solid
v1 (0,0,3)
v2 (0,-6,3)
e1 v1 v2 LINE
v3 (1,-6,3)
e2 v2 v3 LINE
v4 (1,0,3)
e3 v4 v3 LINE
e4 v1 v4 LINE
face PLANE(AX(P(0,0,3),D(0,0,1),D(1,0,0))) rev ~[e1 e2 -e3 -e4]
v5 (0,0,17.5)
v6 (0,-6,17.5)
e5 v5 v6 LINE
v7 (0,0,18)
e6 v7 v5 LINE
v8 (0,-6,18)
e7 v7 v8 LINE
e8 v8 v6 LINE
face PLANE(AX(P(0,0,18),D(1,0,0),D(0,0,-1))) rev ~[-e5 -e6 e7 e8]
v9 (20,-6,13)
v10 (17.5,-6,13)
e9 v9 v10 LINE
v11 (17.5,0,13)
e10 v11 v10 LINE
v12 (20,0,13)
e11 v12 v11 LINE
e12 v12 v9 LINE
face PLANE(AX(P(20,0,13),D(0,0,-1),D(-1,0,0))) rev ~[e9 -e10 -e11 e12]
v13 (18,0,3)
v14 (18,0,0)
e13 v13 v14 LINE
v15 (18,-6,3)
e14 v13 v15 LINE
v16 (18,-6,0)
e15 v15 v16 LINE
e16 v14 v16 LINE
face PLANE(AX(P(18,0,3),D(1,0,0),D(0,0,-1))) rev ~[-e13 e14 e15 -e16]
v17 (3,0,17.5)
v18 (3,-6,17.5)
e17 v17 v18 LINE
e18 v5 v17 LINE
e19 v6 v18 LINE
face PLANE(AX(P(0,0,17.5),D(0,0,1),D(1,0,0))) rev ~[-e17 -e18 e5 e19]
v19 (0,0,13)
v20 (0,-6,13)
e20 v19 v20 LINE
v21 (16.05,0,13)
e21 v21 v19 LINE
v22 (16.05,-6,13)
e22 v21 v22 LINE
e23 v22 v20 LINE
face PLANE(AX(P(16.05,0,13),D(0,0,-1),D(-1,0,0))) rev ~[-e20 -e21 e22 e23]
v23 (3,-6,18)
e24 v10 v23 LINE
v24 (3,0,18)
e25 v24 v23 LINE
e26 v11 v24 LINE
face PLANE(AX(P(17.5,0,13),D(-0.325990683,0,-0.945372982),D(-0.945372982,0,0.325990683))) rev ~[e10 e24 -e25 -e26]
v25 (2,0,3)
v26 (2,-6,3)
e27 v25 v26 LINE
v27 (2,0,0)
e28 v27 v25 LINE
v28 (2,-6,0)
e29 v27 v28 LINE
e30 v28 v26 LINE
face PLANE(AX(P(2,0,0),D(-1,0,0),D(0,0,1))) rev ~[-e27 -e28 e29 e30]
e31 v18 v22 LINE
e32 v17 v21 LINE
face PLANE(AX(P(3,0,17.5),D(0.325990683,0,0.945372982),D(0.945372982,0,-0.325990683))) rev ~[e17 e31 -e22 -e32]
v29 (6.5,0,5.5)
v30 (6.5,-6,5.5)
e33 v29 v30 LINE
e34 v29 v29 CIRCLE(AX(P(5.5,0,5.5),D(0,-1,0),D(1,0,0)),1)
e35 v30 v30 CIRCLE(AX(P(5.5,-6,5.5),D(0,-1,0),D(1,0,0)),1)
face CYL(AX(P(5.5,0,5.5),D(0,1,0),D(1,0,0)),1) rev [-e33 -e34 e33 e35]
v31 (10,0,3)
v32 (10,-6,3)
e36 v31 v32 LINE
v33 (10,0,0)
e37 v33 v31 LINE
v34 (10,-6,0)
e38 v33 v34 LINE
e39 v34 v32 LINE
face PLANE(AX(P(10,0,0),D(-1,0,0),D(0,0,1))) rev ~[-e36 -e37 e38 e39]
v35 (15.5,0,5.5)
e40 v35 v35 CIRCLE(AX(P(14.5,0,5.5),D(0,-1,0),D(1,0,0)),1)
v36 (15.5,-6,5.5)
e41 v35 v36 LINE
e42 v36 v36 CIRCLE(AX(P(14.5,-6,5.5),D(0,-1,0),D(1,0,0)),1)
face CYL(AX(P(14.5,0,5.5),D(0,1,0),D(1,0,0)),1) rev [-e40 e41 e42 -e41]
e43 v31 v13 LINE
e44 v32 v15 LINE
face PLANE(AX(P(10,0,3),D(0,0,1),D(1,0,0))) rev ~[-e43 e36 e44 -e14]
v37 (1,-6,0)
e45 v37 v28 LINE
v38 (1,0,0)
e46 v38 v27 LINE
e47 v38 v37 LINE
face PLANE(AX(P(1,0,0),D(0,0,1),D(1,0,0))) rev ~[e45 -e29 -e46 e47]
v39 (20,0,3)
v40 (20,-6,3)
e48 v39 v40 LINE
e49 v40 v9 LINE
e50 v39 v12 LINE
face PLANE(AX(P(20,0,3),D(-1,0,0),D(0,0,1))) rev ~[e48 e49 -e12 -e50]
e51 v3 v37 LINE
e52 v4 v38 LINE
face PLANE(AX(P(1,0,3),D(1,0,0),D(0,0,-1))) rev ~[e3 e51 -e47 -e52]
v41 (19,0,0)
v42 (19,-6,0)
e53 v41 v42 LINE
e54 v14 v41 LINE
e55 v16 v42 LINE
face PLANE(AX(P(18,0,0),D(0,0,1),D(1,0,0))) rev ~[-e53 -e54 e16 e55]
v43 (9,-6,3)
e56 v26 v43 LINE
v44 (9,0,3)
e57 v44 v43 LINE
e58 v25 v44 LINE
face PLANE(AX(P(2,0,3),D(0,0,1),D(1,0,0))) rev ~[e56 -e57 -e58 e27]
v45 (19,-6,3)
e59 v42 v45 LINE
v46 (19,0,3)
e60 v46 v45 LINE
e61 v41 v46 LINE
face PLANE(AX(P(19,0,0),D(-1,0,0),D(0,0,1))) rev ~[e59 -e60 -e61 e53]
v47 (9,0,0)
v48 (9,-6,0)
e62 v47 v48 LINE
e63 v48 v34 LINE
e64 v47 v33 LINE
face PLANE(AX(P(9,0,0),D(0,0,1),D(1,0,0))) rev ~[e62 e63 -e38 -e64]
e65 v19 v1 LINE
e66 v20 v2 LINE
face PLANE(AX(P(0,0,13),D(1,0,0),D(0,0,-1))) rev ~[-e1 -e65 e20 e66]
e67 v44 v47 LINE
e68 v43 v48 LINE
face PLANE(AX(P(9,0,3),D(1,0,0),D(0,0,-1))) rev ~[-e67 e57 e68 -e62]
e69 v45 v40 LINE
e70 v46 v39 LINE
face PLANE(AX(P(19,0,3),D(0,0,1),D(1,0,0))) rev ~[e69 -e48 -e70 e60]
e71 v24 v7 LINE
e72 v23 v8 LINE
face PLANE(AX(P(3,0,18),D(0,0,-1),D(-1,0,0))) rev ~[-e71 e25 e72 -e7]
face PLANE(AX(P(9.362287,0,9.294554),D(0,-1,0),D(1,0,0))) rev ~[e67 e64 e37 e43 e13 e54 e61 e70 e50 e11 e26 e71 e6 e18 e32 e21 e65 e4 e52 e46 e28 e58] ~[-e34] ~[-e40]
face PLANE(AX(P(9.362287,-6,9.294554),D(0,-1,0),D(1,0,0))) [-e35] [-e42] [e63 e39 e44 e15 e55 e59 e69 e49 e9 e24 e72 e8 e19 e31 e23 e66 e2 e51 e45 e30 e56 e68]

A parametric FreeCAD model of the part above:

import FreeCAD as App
import Part
import Sketcher
Q = App.Units.Quantity


def add_polygon(sketch, points):
    """Adds a closed chain of lines whose ends are joined by coincident constraints."""
    first, n = sketch.GeometryCount, len(points)
    for a, b in zip(points, points[1:] + points[:1]):
        sketch.addGeometry(Part.LineSegment(App.Vector(*a, 0), App.Vector(*b, 0)), False)
    for i in range(n):
        sketch.addConstraint(Sketcher.Constraint("Coincident", first + i, 2, first + (i + 1) % n, 1))

doc = App.newDocument("Part")
body = doc.addObject("PartDesign::Body", "Body")

# Sketch on XZ plane
sketch1 = body.newObject("Sketcher::SketchObject", "Sketch")
sketch1.AttachmentSupport = (doc.getObject("XZ_Plane"), [""])
sketch1.MapMode = "FlatFace"
add_polygon(sketch1, [(0, 13), (0, 3), (1, 3), (1, 0), (2, 0), (2, 3), (9, 3), (9, 0), (10, 0), (10, 3), (18, 3), (18, 0), (19, 0), (19, 3), (20, 3), (20, 13), (17.5, 13), (3, 18), (0, 18), (0, 17.5), (3, 17.5), (16.05, 13)])  # lines 0-21
sketch1.addGeometry(Part.Circle(App.Vector(5.5, 5.5, 0), App.Vector(0, 0, 1), 1), False)  # 22
sketch1.addGeometry(Part.Circle(App.Vector(14.5, 5.5, 0), App.Vector(0, 0, 1), 1), False)  # 23
sketch1.addConstraint(Sketcher.Constraint("Vertical", 0))
sketch1.addConstraint(Sketcher.Constraint("Horizontal", 1))
sketch1.addConstraint(Sketcher.Constraint("Vertical", 2))
sketch1.addConstraint(Sketcher.Constraint("Horizontal", 3))
sketch1.addConstraint(Sketcher.Constraint("Vertical", 4))
sketch1.addConstraint(Sketcher.Constraint("Horizontal", 5))
sketch1.addConstraint(Sketcher.Constraint("Vertical", 6))
sketch1.addConstraint(Sketcher.Constraint("Horizontal", 7))
sketch1.addConstraint(Sketcher.Constraint("Vertical", 8))
sketch1.addConstraint(Sketcher.Constraint("Horizontal", 9))
sketch1.addConstraint(Sketcher.Constraint("Vertical", 10))
sketch1.addConstraint(Sketcher.Constraint("Horizontal", 11))
sketch1.addConstraint(Sketcher.Constraint("Vertical", 12))
sketch1.addConstraint(Sketcher.Constraint("Horizontal", 13))
sketch1.addConstraint(Sketcher.Constraint("Vertical", 14))
sketch1.addConstraint(Sketcher.Constraint("Horizontal", 15))
sketch1.addConstraint(Sketcher.Constraint("Horizontal", 17))
sketch1.addConstraint(Sketcher.Constraint("Vertical", 18))
sketch1.addConstraint(Sketcher.Constraint("Horizontal", 19))
sketch1.addConstraint(Sketcher.Constraint("Horizontal", 21))
sketch1.addConstraint(Sketcher.Constraint("Equal", 22, 23))
sketch1.addConstraint(Sketcher.Constraint("PointOnObject", 0, 2, -2))
sketch1.addConstraint(Sketcher.Constraint("PointOnObject", 2, 2, -1))
sketch1.addConstraint(Sketcher.Constraint("PointOnObject", 6, 2, -1))
sketch1.addConstraint(Sketcher.Constraint("PointOnObject", 10, 2, -1))
sketch1.addConstraint(Sketcher.Constraint("PointOnObject", 17, 2, -2))
sketch1.addConstraint(Sketcher.Constraint("Parallel", 16, 20))
sketch1.addConstraint(Sketcher.Constraint("Horizontal", 22, 3, 23, 3))
sketch1.addConstraint(Sketcher.Constraint("Horizontal", 1, 2, 4, 2))
sketch1.addConstraint(Sketcher.Constraint("Horizontal", 5, 2, 8, 2))
sketch1.addConstraint(Sketcher.Constraint("Horizontal", 9, 2, 12, 2))
sketch1.addConstraint(Sketcher.Constraint("Horizontal", 15, 2, 20, 2))
sketch1.addConstraint(Sketcher.Constraint("Vertical", 16, 2, 19, 2))
sketch1.addConstraint(Sketcher.Constraint("Equal", 1, 3))
sketch1.addConstraint(Sketcher.Constraint("Equal", 3, 7))
sketch1.addConstraint(Sketcher.Constraint("Equal", 7, 11))
sketch1.addConstraint(Sketcher.Constraint("Equal", 11, 13))
sketch1.addConstraint(Sketcher.Constraint("Equal", 19, 2))
sketch1.addConstraint(Sketcher.Constraint("Diameter", 22, Q("2 mm")))
sketch1.addConstraint(Sketcher.Constraint("DistanceX", 1, 1, 1, 2, Q("1 mm")))
sketch1.addConstraint(Sketcher.Constraint("DistanceX", 5, 1, 5, 2, Q("7 mm")))
sketch1.addConstraint(Sketcher.Constraint("DistanceX", 9, 1, 9, 2, Q("8 mm")))
sketch1.addConstraint(Sketcher.Constraint("DistanceX", 17, 2, 17, 1, Q("3 mm")))
sketch1.addConstraint(Sketcher.Constraint("DistanceY", 0, 2, 0, 1, Q("10 mm")))
sketch1.addConstraint(Sketcher.Constraint("DistanceX", 15, 2, 15, 1, Q("2.5 mm")))
sketch1.addConstraint(Sketcher.Constraint("DistanceY", 18, 2, 18, 1, Q("0.5 mm")))
sketch1.addConstraint(Sketcher.Constraint("DistanceY", -1, 1, 16, 2, Q("18 mm")))
sketch1.addConstraint(Sketcher.Constraint("DistanceX", 22, 3, 23, 3, Q("9 mm")))
sketch1.addConstraint(Sketcher.Constraint("DistanceX", 23, 3, 15, 2, Q("3 mm")))
sketch1.addConstraint(Sketcher.Constraint("DistanceY", 22, 3, 18, 2, Q("12 mm")))
pad1 = body.newObject("PartDesign::Pad", "Pad")
pad1.Profile = sketch1
pad1.Length = 6

doc.recompute()
